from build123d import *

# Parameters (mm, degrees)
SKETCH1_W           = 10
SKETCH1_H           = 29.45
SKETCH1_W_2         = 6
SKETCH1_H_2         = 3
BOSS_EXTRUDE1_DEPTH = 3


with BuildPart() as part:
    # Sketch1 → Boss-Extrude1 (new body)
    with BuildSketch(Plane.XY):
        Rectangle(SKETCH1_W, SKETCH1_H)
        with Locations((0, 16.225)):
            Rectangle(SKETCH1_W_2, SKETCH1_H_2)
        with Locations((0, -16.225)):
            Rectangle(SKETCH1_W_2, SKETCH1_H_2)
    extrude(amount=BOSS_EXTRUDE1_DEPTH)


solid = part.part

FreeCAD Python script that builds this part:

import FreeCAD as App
import Part
import Sketcher
Q = App.Units.Quantity


def add_polygon(sketch, points):
    """Adds a closed chain of lines whose ends are joined by coincident constraints."""
    first, n = sketch.GeometryCount, len(points)
    for a, b in zip(points, points[1:] + points[:1]):
        sketch.addGeometry(Part.LineSegment(App.Vector(*a, 0), App.Vector(*b, 0)), False)
    for i in range(n):
        sketch.addConstraint(Sketcher.Constraint("Coincident", first + i, 2, first + (i + 1) % n, 1))

doc = App.newDocument("Part")
params = doc.addObject("Spreadsheet::Sheet", "Params")
for row, (alias, value) in enumerate([
    ("sketch1_width", "2 mm"),
    ("sketch1_width2", "6 mm"),
    ("sketch1_height", "3 mm"),
    ("sketch1_height2", "29.45 mm"),
    ("pad1_length", "3 mm"),
], start=1):
    params.set(f"A{row}", alias)
    params.set(f"B{row}", "=" + value)
    params.setAlias(f"B{row}", alias)

body = doc.addObject("PartDesign::Body", "Body")

# Sketch on XY plane
sketch1 = body.newObject("Sketcher::SketchObject", "Sketch")
sketch1.AttachmentSupport = (doc.getObject("XY_Plane"), [""])
sketch1.MapMode = "FlatFace"
add_polygon(sketch1, [(-5, 14.725), (-5, -14.725), (-3, -14.725), (-3, -17.725), (3, -17.725), (3, -14.725), (5, -14.725), (5, 14.725), (3, 14.725), (3, 17.725), (-3, 17.725), (-3, 14.725)])  # lines 0-11
sketch1.addConstraint([
    Sketcher.Constraint("Vertical", 0),
    Sketcher.Constraint("Horizontal", 1),
    Sketcher.Constraint("Vertical", 2),
    Sketcher.Constraint("Horizontal", 3),
    Sketcher.Constraint("Vertical", 4),
    Sketcher.Constraint("Horizontal", 5),
    Sketcher.Constraint("Vertical", 6),
    Sketcher.Constraint("Horizontal", 7),
    Sketcher.Constraint("Vertical", 8),
    Sketcher.Constraint("Horizontal", 9),
    Sketcher.Constraint("Vertical", 10),
    Sketcher.Constraint("Horizontal", 11),
    Sketcher.Constraint("Symmetric", 0, 2, 6, 2, -1, 1),
    Sketcher.Constraint("Symmetric", 2, 2, 8, 2, -1, 1),
    Sketcher.Constraint("Symmetric", 4, 2, 10, 2, -1, 1),
    Sketcher.Constraint("Symmetric", 1, 2, 4, 2, -2),
    Sketcher.Constraint("DistanceX", 1, 1, 1, 2, Q("2 mm")),
    Sketcher.Constraint("DistanceX", 3, 1, 3, 2, Q("6 mm")),
    Sketcher.Constraint("DistanceY", 2, 2, 2, 1, Q("3 mm")),
    Sketcher.Constraint("DistanceY", 0, 2, 0, 1, Q("29.45 mm")),
])
sketch1.setExpression("Constraints[28]", "Params.sketch1_width")
sketch1.setExpression("Constraints[29]", "Params.sketch1_width2")
sketch1.setExpression("Constraints[30]", "Params.sketch1_height")
sketch1.setExpression("Constraints[31]", "Params.sketch1_height2")
pad1 = body.newObject("PartDesign::Pad", "Pad")
pad1.Profile = sketch1
pad1.setExpression("Length", "Params.pad1_length")

doc.recompute()
